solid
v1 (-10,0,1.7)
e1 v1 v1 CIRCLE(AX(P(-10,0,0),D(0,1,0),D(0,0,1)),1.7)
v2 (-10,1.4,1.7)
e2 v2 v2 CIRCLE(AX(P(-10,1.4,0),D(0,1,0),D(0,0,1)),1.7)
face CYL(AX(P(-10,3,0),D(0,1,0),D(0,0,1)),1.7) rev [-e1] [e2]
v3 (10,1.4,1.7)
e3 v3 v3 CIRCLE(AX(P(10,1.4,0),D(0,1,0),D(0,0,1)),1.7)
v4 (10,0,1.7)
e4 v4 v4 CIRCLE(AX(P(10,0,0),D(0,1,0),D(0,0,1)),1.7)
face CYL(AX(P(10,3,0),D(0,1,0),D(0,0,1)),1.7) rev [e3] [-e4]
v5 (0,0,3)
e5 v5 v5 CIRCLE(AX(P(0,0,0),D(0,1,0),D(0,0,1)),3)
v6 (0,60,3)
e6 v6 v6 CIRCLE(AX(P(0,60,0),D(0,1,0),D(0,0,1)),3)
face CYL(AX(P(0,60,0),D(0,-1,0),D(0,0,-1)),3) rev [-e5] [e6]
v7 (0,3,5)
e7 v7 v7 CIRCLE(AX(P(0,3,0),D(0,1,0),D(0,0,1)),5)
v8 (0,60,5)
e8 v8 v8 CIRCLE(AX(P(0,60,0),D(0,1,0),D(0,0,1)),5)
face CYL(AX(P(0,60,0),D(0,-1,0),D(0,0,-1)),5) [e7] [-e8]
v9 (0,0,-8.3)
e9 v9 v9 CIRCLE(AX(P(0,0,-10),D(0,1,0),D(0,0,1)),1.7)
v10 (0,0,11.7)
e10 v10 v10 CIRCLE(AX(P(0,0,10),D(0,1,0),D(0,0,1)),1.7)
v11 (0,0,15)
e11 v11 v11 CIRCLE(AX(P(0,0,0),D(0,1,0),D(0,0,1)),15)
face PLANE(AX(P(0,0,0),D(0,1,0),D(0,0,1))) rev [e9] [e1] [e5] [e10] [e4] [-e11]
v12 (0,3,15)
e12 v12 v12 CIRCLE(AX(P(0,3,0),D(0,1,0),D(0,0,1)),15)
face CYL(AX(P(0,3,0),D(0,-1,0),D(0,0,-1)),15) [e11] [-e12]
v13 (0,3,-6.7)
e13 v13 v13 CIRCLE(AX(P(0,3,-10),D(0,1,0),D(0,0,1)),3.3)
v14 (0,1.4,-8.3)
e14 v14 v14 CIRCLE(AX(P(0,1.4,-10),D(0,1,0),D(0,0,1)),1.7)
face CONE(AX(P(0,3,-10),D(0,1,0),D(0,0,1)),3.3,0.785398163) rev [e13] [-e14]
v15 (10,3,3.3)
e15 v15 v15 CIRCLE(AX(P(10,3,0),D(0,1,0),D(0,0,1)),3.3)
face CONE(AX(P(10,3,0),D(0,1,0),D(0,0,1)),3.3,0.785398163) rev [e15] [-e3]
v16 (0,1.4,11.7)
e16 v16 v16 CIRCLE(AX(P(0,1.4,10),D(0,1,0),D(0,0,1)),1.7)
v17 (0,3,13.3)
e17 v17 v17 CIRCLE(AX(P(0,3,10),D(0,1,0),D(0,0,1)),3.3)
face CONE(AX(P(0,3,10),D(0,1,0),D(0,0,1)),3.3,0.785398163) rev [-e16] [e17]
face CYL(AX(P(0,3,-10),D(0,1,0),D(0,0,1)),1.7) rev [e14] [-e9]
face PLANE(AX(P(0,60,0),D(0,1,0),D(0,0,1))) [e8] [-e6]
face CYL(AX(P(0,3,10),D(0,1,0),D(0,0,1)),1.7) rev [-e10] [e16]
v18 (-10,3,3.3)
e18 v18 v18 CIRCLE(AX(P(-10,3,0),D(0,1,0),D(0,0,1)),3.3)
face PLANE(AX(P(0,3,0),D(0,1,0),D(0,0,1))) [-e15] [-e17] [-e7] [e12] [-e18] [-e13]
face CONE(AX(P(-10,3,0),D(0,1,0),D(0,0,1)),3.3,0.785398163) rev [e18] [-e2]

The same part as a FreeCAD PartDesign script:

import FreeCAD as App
import Part
import Sketcher
Q = App.Units.Quantity


def add_polygon(sketch, points):
    """Adds a closed chain of lines whose ends are joined by coincident constraints."""
    first, n = sketch.GeometryCount, len(points)
    for a, b in zip(points, points[1:] + points[:1]):
        sketch.addGeometry(Part.LineSegment(App.Vector(*a, 0), App.Vector(*b, 0)), False)
    for i in range(n):
        sketch.addConstraint(Sketcher.Constraint("Coincident", first + i, 2, first + (i + 1) % n, 1))

doc = App.newDocument("Part")
params = doc.addObject("Spreadsheet::Sheet", "Params")
for row, (alias, value) in enumerate([
    ("sketch1_diameter", "10 mm"),
    ("sketch1_diameter2", "6 mm"),
    ("pad1_length", "60 mm"),
    ("sketch2_diameter", "30 mm"),
    ("sketch2_diameter2", "10 mm"),
    ("pad2_length", "3 mm"),
    ("sketch3_width", "3 mm"),
    ("sketch3_width2", "1.4 mm"),
    ("sketch3_height", "3.3 mm"),
    ("groove_angle", "360 deg"),
    ("linearpattern_pitch", "14.142136 mm"),
    ("linearpattern2_pitch", "20 mm"),
    ("linearpattern3_pitch", "14.142136 mm"),
], start=1):
    params.set(f"A{row}", alias)
    params.set(f"B{row}", "=" + value)
    params.setAlias(f"B{row}", alias)

body = doc.addObject("PartDesign::Body", "Body")

sketch1 = doc.addObject("Sketcher::SketchObject", "Sketch")
body.addObject(sketch1)
sketch1.AttachmentSupport = (doc.XZ_Plane, [""])
sketch1.MapMode = "FlatFace"
sketch1.addGeometry(Part.Circle(App.Vector(0, 0, 0), App.Vector(0, 0, 1), 5), False)
sketch1.addGeometry(Part.Circle(App.Vector(0, 0, 0), App.Vector(0, 0, 1), 3), False)
sketch1.addConstraint(Sketcher.Constraint("Coincident", 0, 3, -1, 1))
sketch1.addConstraint(Sketcher.Constraint("Coincident", 1, 3, -1, 1))
sketch1.addConstraint(Sketcher.Constraint("Diameter", 0, 10.0))
sketch1.addConstraint(Sketcher.Constraint("Diameter", 1, 6.0))
sketch1.setExpression("Constraints[2]", "Params.sketch1_diameter")
sketch1.setExpression("Constraints[3]", "Params.sketch1_diameter2")
pad1 = doc.addObject("PartDesign::Pad", "Pad")
body.addObject(pad1)
pad1.Profile = sketch1
pad1.setExpression("Length", "Params.pad1_length")
pad1.Reversed = True

sketch2 = doc.addObject("Sketcher::SketchObject", "Sketch001")
body.addObject(sketch2)
sketch2.AttachmentSupport = (doc.XZ_Plane, [""])
sketch2.MapMode = "FlatFace"
sketch2.addGeometry(Part.Circle(App.Vector(0, 0, 0), App.Vector(0, 0, 1), 15), False)
sketch2.addGeometry(Part.Circle(App.Vector(0, 0, 0), App.Vector(0, 0, 1), 5), False)
sketch2.addConstraint(Sketcher.Constraint("Coincident", 0, 3, -1, 1))
sketch2.addConstraint(Sketcher.Constraint("Coincident", 1, 3, -1, 1))
sketch2.addConstraint(Sketcher.Constraint("Diameter", 0, 30.0))
sketch2.addConstraint(Sketcher.Constraint("Diameter", 1, 10.0))
sketch2.setExpression("Constraints[2]", "Params.sketch2_diameter")
sketch2.setExpression("Constraints[3]", "Params.sketch2_diameter2")
pad2 = doc.addObject("PartDesign::Pad", "Pad001")
body.addObject(pad2)
pad2.Profile = sketch2
pad2.setExpression("Length", "Params.pad2_length")
pad2.Reversed = True

sketch3 = doc.addObject("Sketcher::SketchObject", "Sketch002")
body.addObject(sketch3)
sketch3.AttachmentSupport = (doc.YZ_Plane, [""])
sketch3.MapMode = "FlatFace"
sketch3.AttachmentOffset = App.Placement(App.Vector(0, 0, -10), App.Rotation())
add_polygon(sketch3, [(0, 0), (3, 0), (3, 3.3), (1.4, 1.7), (0, 1.7)])
sketch3.addConstraint(Sketcher.Constraint("Horizontal", 0))
sketch3.addConstraint(Sketcher.Constraint("Vertical", 1))
sketch3.addConstraint(Sketcher.Constraint("Horizontal", 3))
sketch3.addConstraint(Sketcher.Constraint("Vertical", 4))
sketch3.addConstraint(Sketcher.Constraint("Coincident", 4, 2, -1, 1))
sketch3.addConstraint(Sketcher.Constraint("DistanceX", 0, 1, 0, 2, 3.0))
sketch3.addConstraint(Sketcher.Constraint("Angle", 2, Q("-135 deg")))
sketch3.addConstraint(Sketcher.Constraint("DistanceX", 3, 2, 3, 1, 1.4))
sketch3.addConstraint(Sketcher.Constraint("DistanceY", 1, 1, 1, 2, 3.3))
sketch3.setExpression("Constraints[10]", "Params.sketch3_width")
sketch3.setExpression("Constraints[12]", "Params.sketch3_width2")
sketch3.setExpression("Constraints[13]", "Params.sketch3_height")
groove = doc.addObject("PartDesign::Groove", "Groove")
body.addObject(groove)
groove.Profile = sketch3
groove.ReferenceAxis = (sketch3, ["H_Axis"])
groove.setExpression("Angle", "Params.groove_angle")
doc.recompute()

datumline = doc.addObject("PartDesign::Line", "DatumLine")
body.addObject(datumline)
datumline.Placement = App.Placement(App.Vector(0, 0, 0), App.Rotation(App.Vector(0, 0, 1), App.Vector(0.707106781, 0, 0.707106781)))
linearpattern = doc.addObject("PartDesign::LinearPattern", "LinearPattern")
body.addObject(linearpattern)
linearpattern.Originals = [groove]
linearpattern.Direction = (datumline, [""])
linearpattern.Mode = "offset"
linearpattern.setExpression("Offset", "Params.linearpattern_pitch")
linearpattern.Occurrences = 2
body.Tip = linearpattern
doc.recompute()

linearpattern2 = doc.addObject("PartDesign::LinearPattern", "LinearPattern001")
body.addObject(linearpattern2)
linearpattern2.Originals = [groove]
linearpattern2.Direction = (doc.X_Axis, [""])
linearpattern2.Mode = "offset"
linearpattern2.setExpression("Offset", "Params.linearpattern2_pitch")
linearpattern2.Occurrences = 2
body.Tip = linearpattern2
doc.recompute()

datumline2 = doc.addObject("PartDesign::Line", "DatumLine001")
body.addObject(datumline2)
datumline2.Placement = App.Placement(App.Vector(0, 0, 0), App.Rotation(App.Vector(0, 0, 1), App.Vector(0.707106781, 0, -0.707106781)))
linearpattern3 = doc.addObject("PartDesign::LinearPattern", "LinearPattern002")
body.addObject(linearpattern3)
linearpattern3.Originals = [groove]
linearpattern3.Direction = (datumline2, [""])
linearpattern3.Mode = "offset"
linearpattern3.setExpression("Offset", "Params.linearpattern3_pitch")
linearpattern3.Occurrences = 2
body.Tip = linearpattern3

doc.recompute()
